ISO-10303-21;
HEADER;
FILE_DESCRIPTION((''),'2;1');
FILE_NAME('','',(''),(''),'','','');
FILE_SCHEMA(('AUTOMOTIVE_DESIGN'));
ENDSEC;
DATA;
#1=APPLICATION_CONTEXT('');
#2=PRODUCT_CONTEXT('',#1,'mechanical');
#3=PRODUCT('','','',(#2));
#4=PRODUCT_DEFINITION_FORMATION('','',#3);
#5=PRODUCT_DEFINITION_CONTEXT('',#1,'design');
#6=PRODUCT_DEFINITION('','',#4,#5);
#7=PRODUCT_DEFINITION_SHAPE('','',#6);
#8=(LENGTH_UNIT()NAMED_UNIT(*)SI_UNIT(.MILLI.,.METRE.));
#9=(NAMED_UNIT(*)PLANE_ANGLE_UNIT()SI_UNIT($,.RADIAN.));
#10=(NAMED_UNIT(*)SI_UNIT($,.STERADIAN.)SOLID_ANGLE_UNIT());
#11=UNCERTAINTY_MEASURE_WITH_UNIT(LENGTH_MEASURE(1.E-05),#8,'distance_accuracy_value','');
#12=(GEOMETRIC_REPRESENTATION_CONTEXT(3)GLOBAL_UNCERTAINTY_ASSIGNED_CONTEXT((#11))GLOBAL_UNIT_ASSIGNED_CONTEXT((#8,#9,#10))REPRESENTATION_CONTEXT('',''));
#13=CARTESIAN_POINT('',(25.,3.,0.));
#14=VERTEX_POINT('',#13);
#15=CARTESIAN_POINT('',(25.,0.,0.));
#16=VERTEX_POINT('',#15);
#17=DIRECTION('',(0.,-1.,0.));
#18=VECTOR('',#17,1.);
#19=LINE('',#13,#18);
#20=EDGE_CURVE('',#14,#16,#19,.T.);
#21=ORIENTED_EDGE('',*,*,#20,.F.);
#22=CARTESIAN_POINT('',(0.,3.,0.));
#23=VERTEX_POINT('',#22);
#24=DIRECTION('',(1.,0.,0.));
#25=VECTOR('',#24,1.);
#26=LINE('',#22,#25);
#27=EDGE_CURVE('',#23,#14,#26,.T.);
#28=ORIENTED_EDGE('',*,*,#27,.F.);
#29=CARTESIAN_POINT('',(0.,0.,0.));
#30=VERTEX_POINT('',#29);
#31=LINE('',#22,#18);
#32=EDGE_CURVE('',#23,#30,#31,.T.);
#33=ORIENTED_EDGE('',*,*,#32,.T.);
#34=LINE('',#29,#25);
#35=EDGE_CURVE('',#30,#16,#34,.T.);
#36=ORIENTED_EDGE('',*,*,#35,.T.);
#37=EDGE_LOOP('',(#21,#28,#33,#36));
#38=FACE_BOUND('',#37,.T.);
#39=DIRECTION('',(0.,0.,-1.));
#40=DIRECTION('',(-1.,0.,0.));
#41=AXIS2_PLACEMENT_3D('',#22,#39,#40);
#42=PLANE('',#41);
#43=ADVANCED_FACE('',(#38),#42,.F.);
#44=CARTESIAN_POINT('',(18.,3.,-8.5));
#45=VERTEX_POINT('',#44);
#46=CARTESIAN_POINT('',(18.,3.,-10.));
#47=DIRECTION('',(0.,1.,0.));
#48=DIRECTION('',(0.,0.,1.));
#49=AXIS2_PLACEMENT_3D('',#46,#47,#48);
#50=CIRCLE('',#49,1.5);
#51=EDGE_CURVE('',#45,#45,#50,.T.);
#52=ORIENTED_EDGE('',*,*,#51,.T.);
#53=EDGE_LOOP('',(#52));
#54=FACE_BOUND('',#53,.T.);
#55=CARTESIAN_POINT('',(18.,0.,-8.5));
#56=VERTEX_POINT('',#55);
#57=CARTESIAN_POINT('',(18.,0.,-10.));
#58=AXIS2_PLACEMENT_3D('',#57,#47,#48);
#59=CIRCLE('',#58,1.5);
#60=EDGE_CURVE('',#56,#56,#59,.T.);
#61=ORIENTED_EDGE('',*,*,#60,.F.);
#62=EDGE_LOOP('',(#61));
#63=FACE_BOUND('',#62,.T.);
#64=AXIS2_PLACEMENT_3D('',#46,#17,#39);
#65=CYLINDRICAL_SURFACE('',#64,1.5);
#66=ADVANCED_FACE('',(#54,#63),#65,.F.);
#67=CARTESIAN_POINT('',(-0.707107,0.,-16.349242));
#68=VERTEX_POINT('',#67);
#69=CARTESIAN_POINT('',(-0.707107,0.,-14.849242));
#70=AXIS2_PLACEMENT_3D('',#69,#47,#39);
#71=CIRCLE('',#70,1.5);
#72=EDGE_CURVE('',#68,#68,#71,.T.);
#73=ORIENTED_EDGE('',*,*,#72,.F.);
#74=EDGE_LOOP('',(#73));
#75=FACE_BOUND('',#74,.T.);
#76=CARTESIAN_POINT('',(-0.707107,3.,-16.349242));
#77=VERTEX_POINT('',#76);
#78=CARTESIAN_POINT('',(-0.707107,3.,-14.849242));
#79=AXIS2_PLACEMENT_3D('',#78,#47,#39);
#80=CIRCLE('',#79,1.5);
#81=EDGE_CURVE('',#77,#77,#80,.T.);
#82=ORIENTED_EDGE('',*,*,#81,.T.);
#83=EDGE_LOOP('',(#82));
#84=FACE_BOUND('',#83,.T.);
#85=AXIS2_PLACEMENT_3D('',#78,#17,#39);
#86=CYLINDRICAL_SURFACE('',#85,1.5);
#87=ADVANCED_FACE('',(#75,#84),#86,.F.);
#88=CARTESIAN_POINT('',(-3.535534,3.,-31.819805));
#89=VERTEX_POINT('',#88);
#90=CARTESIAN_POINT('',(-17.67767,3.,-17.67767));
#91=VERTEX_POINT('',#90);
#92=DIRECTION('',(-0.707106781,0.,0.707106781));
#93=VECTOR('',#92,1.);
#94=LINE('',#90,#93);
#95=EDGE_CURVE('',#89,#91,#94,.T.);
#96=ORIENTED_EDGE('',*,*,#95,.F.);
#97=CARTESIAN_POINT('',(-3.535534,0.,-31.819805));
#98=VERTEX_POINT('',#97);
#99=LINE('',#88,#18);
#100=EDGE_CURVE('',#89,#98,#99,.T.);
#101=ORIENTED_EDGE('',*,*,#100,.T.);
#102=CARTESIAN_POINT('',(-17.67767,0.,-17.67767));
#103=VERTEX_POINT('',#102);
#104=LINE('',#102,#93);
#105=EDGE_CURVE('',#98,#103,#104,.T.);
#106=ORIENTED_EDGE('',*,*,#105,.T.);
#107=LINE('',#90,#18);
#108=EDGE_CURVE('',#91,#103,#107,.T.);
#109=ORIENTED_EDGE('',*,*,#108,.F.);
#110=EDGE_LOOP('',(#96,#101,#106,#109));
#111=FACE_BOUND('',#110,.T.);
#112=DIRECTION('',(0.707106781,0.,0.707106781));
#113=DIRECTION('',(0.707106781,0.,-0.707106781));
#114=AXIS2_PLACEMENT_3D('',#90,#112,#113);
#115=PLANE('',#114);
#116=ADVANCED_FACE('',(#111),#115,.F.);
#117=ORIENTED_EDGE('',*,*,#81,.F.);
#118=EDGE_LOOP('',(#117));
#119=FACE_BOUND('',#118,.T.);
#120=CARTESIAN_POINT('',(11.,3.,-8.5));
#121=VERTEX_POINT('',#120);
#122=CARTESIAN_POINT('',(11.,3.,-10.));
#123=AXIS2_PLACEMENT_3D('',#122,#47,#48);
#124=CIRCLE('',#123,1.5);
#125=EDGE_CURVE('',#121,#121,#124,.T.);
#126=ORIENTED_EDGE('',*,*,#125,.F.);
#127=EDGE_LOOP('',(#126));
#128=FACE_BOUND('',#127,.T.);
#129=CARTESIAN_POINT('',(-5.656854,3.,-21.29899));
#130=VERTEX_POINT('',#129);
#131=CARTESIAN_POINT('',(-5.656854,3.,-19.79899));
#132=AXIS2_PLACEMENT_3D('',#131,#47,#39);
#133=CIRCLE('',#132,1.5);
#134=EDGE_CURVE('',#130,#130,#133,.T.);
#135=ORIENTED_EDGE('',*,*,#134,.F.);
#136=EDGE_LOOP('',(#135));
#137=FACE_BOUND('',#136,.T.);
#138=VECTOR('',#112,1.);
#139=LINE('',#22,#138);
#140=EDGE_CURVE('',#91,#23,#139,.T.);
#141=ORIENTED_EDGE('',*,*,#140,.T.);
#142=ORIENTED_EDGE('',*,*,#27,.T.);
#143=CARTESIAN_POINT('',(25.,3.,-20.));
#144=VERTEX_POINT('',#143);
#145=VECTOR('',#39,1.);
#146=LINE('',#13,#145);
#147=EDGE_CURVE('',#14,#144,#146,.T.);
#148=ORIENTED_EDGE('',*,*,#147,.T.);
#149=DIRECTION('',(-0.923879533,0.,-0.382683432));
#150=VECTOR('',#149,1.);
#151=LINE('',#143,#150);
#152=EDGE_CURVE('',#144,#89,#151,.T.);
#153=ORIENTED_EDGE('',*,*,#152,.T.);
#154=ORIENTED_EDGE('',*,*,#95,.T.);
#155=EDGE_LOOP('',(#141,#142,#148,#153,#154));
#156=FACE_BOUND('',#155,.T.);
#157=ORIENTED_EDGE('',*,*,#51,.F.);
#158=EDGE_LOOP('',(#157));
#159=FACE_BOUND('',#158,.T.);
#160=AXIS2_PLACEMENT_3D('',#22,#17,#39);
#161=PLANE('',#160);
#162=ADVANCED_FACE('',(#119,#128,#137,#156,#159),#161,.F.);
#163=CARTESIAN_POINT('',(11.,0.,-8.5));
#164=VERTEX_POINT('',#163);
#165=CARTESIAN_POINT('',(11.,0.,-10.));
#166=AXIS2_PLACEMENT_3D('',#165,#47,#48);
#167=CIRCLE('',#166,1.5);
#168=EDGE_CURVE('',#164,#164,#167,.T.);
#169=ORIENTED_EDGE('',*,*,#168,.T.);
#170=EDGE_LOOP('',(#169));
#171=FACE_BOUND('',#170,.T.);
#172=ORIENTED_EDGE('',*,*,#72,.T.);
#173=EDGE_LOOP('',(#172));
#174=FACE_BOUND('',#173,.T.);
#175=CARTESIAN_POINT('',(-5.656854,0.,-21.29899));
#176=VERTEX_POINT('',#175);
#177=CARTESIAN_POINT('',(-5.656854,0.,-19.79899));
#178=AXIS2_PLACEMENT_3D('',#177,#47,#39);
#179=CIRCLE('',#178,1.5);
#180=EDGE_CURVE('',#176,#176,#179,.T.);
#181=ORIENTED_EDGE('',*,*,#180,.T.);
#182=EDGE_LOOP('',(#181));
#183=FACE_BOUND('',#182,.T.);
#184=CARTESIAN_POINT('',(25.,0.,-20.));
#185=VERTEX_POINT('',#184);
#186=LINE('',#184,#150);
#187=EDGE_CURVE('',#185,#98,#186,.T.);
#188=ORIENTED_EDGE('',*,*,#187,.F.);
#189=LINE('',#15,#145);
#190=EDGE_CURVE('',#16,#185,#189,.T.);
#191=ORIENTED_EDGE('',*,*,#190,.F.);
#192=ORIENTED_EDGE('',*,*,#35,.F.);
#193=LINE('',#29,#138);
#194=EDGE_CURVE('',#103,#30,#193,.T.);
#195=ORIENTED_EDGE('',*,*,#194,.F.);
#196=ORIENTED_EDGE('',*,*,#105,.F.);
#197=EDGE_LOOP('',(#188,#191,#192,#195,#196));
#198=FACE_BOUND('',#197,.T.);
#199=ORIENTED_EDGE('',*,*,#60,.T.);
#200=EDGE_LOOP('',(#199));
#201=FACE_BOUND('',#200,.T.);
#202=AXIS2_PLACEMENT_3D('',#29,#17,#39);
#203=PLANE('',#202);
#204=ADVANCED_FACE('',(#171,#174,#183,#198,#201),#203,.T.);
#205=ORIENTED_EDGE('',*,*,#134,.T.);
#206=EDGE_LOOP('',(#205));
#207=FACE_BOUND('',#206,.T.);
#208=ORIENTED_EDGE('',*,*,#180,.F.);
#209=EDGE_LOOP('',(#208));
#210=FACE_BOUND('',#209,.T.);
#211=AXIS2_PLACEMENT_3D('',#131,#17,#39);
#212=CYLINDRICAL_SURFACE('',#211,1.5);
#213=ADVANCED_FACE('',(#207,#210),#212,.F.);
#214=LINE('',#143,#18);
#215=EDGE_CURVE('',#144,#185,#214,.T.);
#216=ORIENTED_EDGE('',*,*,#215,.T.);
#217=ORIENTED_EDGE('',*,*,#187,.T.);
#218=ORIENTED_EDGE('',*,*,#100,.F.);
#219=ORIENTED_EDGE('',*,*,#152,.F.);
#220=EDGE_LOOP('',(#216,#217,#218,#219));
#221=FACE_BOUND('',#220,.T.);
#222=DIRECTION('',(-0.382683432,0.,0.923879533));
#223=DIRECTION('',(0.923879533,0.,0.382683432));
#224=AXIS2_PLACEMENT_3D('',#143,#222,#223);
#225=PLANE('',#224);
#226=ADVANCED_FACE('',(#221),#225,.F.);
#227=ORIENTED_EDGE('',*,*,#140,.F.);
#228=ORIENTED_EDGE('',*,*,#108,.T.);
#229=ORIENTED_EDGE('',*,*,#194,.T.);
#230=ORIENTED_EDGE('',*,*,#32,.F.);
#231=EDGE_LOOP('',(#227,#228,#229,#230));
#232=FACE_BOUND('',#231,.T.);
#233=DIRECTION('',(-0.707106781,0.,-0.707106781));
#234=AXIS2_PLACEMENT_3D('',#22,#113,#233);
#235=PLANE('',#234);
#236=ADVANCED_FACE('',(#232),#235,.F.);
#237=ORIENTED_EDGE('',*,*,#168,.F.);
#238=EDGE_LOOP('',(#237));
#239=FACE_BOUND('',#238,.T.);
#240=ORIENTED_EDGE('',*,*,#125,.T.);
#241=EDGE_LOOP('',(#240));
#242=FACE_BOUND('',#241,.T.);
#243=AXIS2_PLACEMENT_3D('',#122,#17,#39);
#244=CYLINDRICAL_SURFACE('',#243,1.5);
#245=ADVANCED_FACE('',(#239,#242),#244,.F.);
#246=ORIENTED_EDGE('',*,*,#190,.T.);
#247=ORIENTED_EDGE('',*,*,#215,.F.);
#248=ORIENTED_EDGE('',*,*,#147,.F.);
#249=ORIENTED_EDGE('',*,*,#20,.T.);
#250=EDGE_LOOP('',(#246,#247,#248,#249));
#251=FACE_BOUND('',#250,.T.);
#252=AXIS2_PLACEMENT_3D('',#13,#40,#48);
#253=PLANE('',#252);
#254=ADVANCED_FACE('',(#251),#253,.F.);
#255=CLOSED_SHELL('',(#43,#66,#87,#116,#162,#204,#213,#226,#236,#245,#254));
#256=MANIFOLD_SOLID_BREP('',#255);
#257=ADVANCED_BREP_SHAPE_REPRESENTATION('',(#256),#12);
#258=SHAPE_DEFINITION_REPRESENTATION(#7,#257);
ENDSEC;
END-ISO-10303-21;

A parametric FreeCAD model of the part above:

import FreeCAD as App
import Part
import Sketcher
Q = App.Units.Quantity

doc = App.newDocument("Part")
body = doc.addObject("PartDesign::Body", "Body")

# Sketch on XZ plane
sketch1 = body.newObject("Sketcher::SketchObject", "Sketch")
sketch1.AttachmentSupport = (doc.getObject("XZ_Plane"), [""])
sketch1.MapMode = "FlatFace"
sketch1.addGeometry([
    Part.LineSegment(App.Vector(0, 0, 0), App.Vector(25, 0, 0)),  # 0
    Part.LineSegment(App.Vector(25, 0, 0), App.Vector(25, -20, 0)),  # 1
    Part.LineSegment(App.Vector(25, -20, 0), App.Vector(-3.5, -31.8, 0)),  # 2
    Part.LineSegment(App.Vector(-3.5, -31.8, 0), App.Vector(-17.7, -17.7, 0)),  # 3
    Part.LineSegment(App.Vector(-17.7, -17.7, 0), App.Vector(0, 0, 0)),  # 4
    Part.Circle(App.Vector(-0.7, -14.8, 0), App.Vector(0, 0, 1), 1.5),  # 5
    Part.Circle(App.Vector(11, -10, 0), App.Vector(0, 0, 1), 1.5),  # 6
    Part.Circle(App.Vector(18, -10, 0), App.Vector(0, 0, 1), 1.5),  # 7
    Part.Circle(App.Vector(-5.7, -19.8, 0), App.Vector(0, 0, 1), 1.5),  # 8
], False)
sketch1.addConstraint([
    Sketcher.Constraint("Coincident", 0, 2, 1, 1),
    Sketcher.Constraint("Coincident", 1, 2, 2, 1),
    Sketcher.Constraint("Coincident", 2, 2, 3, 1),
    Sketcher.Constraint("Coincident", 3, 2, 4, 1),
    Sketcher.Constraint("Coincident", 4, 2, 0, 1),
    Sketcher.Constraint("Horizontal", 0),
    Sketcher.Constraint("Vertical", 1),
    Sketcher.Constraint("Coincident", 4, 2, -1, 1),
    Sketcher.Constraint("Equal", 5, 6),
    Sketcher.Constraint("Equal", 6, 7),
    Sketcher.Constraint("Equal", 7, 8),
    Sketcher.Constraint("Perpendicular", 3, 4),
    Sketcher.Constraint("Horizontal", 6, 3, 7, 3),
    Sketcher.Constraint("Diameter", 5, 3.0),
    Sketcher.Constraint("DistanceX", 0, 1, 0, 2, 25.0),
    Sketcher.Constraint("DistanceY", 1, 2, 1, 1, 20.0),
    Sketcher.Constraint("Angle", 3, Q("135 deg")),
    Sketcher.Constraint("Distance", 3, 20.0),
    Sketcher.Constraint("Distance", 4, 25.0),
    Sketcher.Constraint("DistanceX", -1, 1, 6, 3, 11.0),
    Sketcher.Constraint("DistanceY", 6, 3, -1, 1, 10.0),
    Sketcher.Constraint("DistanceX", -1, 1, 7, 3, 18.0),
    Sketcher.Constraint("DistanceY", 8, 3, -1, 1, 19.79899),
    Sketcher.Constraint("DistanceX", 8, 3, 2, 2, 2.12132),
    Sketcher.Constraint("DistanceX", 5, 3, -1, 1, 0.707107),
    Sketcher.Constraint("DistanceY", 5, 3, -1, 1, 14.849242),
])
pad1 = body.newObject("PartDesign::Pad", "Pad")
pad1.Profile = sketch1
pad1.Length = 3
pad1.Reversed = True

doc.recompute()
